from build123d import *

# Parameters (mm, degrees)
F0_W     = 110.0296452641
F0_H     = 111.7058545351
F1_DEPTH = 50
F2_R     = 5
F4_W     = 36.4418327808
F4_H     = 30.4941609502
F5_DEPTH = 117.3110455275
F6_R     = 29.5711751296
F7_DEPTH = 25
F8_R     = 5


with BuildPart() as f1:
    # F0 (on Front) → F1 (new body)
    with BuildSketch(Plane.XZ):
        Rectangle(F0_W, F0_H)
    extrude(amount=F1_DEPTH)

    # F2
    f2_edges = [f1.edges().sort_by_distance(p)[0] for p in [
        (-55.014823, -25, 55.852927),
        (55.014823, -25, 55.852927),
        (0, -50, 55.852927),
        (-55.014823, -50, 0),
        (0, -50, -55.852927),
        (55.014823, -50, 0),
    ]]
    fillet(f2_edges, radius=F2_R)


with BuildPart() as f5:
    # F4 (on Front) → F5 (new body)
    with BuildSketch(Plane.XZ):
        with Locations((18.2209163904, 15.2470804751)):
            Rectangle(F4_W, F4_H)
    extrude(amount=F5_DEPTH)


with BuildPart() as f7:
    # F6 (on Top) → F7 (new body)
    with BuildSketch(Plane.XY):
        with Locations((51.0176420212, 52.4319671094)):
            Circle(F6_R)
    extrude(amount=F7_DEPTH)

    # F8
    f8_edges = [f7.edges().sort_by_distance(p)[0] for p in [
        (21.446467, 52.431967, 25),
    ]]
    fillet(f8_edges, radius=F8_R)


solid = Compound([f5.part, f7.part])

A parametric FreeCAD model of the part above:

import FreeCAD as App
import Part
import Sketcher
from FreeCAD import Vector
Q = App.Units.Quantity


def edges_at(feature, points):
    """Names of the edges that pass closest to the given points."""
    edges = feature.Shape.Edges
    near = lambda p: min(range(len(edges)), key=lambda i: edges[i].distToShape(Part.Vertex(*p))[0])
    return sorted({f"Edge{near(p) + 1}" for p in points})

doc = App.newDocument("Part")
body = doc.addObject("PartDesign::Body", "Body")

sketch1 = body.newObject("Sketcher::SketchObject", "Sketch")
sketch1.AttachmentSupport = (doc.getObject("XZ_Plane"), [""])
sketch1.MapMode = "FlatFace"
sketch1.addGeometry([
    Part.LineSegment(Vector(-55, 56, 0), Vector(-55, -56, 0)),
    Part.LineSegment(Vector(-55, -56, 0), Vector(55, -56, 0)),
    Part.LineSegment(Vector(55, -56, 0), Vector(55, 56, 0)),
    Part.LineSegment(Vector(55, 56, 0), Vector(-55, 56, 0)),
], False)
sketch1.addConstraint([
    Sketcher.Constraint("Coincident", 0, 2, 1, 1),
    Sketcher.Constraint("Coincident", 1, 2, 2, 1),
    Sketcher.Constraint("Coincident", 2, 2, 3, 1),
    Sketcher.Constraint("Coincident", 3, 2, 0, 1),
    Sketcher.Constraint("Vertical", 0),
    Sketcher.Constraint("Horizontal", 1),
    Sketcher.Constraint("Vertical", 2),
    Sketcher.Constraint("Horizontal", 3),
    Sketcher.Constraint("Symmetric", 0, 2, 2, 2, -1, 1),
    Sketcher.Constraint("DistanceX", 1, 1, 1, 2, Q("110.029645 mm")),
    Sketcher.Constraint("DistanceY", 0, 2, 0, 1, Q("111.705855 mm")),
])
pad1 = body.newObject("PartDesign::Pad", "Pad")
pad1.Profile = sketch1
pad1.Length = 50
doc.recompute()

fillet = body.newObject("PartDesign::Fillet", "Fillet")
fillet.Base = (pad1, edges_at(pad1, [
    (-55.015, -25, 55.853),
    (55.015, -25, 55.853),
    (0, -50, 55.853),
    (-55.015, -50, 0),
    (0, -50, -55.853),
    (55.015, -50, 0),
]))
fillet.Radius = 5
body2 = doc.addObject("PartDesign::Body", "Body001")

sketch2 = body2.newObject("Sketcher::SketchObject", "Sketch001")
sketch2.AttachmentSupport = (doc.getObject("XZ_Plane001"), [""])
sketch2.MapMode = "FlatFace"
sketch2.addGeometry([
    Part.LineSegment(Vector(0, 30, 0), Vector(0, 0, 0)),
    Part.LineSegment(Vector(0, 0, 0), Vector(36, 0, 0)),
    Part.LineSegment(Vector(36, 0, 0), Vector(36, 30, 0)),
    Part.LineSegment(Vector(36, 30, 0), Vector(0, 30, 0)),
], False)
sketch2.addConstraint([
    Sketcher.Constraint("Coincident", 0, 2, 1, 1),
    Sketcher.Constraint("Coincident", 1, 2, 2, 1),
    Sketcher.Constraint("Coincident", 2, 2, 3, 1),
    Sketcher.Constraint("Coincident", 3, 2, 0, 1),
    Sketcher.Constraint("Vertical", 0),
    Sketcher.Constraint("Horizontal", 1),
    Sketcher.Constraint("Vertical", 2),
    Sketcher.Constraint("Horizontal", 3),
    Sketcher.Constraint("Coincident", 0, 2, -1, 1),
    Sketcher.Constraint("DistanceY", 0, 2, 0, 1, Q("30.494161 mm")),
    Sketcher.Constraint("DistanceX", 1, 1, 1, 2, Q("36.441833 mm")),
])
pad2 = body2.newObject("PartDesign::Pad", "Pad001")
pad2.Profile = sketch2
pad2.Length = 117.311046
body3 = doc.addObject("PartDesign::Body", "Body002")

sketch3 = body3.newObject("Sketcher::SketchObject", "Sketch002")
sketch3.AttachmentSupport = (doc.getObject("XY_Plane002"), [""])
sketch3.MapMode = "FlatFace"
sketch3.addGeometry(Part.Circle(Vector(51, 52, 0), Vector(0, 0, 1), 30), False)
sketch3.addConstraint([
    Sketcher.Constraint("Diameter", 0, Q("59.14235 mm")),
    Sketcher.Constraint("DistanceX", -1, 1, 0, 3, Q("51.017642 mm")),
    Sketcher.Constraint("DistanceY", -1, 1, 0, 3, Q("52.431967 mm")),
])
pad3 = body3.newObject("PartDesign::Pad", "Pad002")
pad3.Profile = sketch3
pad3.Length = 25
doc.recompute()

fillet2 = body3.newObject("PartDesign::Fillet", "Fillet001")
fillet2.Base = (pad3, edges_at(pad3, [(21.446, 52.432, 25)]))
fillet2.Radius = 5
body.Visibility = False

doc.recompute()
